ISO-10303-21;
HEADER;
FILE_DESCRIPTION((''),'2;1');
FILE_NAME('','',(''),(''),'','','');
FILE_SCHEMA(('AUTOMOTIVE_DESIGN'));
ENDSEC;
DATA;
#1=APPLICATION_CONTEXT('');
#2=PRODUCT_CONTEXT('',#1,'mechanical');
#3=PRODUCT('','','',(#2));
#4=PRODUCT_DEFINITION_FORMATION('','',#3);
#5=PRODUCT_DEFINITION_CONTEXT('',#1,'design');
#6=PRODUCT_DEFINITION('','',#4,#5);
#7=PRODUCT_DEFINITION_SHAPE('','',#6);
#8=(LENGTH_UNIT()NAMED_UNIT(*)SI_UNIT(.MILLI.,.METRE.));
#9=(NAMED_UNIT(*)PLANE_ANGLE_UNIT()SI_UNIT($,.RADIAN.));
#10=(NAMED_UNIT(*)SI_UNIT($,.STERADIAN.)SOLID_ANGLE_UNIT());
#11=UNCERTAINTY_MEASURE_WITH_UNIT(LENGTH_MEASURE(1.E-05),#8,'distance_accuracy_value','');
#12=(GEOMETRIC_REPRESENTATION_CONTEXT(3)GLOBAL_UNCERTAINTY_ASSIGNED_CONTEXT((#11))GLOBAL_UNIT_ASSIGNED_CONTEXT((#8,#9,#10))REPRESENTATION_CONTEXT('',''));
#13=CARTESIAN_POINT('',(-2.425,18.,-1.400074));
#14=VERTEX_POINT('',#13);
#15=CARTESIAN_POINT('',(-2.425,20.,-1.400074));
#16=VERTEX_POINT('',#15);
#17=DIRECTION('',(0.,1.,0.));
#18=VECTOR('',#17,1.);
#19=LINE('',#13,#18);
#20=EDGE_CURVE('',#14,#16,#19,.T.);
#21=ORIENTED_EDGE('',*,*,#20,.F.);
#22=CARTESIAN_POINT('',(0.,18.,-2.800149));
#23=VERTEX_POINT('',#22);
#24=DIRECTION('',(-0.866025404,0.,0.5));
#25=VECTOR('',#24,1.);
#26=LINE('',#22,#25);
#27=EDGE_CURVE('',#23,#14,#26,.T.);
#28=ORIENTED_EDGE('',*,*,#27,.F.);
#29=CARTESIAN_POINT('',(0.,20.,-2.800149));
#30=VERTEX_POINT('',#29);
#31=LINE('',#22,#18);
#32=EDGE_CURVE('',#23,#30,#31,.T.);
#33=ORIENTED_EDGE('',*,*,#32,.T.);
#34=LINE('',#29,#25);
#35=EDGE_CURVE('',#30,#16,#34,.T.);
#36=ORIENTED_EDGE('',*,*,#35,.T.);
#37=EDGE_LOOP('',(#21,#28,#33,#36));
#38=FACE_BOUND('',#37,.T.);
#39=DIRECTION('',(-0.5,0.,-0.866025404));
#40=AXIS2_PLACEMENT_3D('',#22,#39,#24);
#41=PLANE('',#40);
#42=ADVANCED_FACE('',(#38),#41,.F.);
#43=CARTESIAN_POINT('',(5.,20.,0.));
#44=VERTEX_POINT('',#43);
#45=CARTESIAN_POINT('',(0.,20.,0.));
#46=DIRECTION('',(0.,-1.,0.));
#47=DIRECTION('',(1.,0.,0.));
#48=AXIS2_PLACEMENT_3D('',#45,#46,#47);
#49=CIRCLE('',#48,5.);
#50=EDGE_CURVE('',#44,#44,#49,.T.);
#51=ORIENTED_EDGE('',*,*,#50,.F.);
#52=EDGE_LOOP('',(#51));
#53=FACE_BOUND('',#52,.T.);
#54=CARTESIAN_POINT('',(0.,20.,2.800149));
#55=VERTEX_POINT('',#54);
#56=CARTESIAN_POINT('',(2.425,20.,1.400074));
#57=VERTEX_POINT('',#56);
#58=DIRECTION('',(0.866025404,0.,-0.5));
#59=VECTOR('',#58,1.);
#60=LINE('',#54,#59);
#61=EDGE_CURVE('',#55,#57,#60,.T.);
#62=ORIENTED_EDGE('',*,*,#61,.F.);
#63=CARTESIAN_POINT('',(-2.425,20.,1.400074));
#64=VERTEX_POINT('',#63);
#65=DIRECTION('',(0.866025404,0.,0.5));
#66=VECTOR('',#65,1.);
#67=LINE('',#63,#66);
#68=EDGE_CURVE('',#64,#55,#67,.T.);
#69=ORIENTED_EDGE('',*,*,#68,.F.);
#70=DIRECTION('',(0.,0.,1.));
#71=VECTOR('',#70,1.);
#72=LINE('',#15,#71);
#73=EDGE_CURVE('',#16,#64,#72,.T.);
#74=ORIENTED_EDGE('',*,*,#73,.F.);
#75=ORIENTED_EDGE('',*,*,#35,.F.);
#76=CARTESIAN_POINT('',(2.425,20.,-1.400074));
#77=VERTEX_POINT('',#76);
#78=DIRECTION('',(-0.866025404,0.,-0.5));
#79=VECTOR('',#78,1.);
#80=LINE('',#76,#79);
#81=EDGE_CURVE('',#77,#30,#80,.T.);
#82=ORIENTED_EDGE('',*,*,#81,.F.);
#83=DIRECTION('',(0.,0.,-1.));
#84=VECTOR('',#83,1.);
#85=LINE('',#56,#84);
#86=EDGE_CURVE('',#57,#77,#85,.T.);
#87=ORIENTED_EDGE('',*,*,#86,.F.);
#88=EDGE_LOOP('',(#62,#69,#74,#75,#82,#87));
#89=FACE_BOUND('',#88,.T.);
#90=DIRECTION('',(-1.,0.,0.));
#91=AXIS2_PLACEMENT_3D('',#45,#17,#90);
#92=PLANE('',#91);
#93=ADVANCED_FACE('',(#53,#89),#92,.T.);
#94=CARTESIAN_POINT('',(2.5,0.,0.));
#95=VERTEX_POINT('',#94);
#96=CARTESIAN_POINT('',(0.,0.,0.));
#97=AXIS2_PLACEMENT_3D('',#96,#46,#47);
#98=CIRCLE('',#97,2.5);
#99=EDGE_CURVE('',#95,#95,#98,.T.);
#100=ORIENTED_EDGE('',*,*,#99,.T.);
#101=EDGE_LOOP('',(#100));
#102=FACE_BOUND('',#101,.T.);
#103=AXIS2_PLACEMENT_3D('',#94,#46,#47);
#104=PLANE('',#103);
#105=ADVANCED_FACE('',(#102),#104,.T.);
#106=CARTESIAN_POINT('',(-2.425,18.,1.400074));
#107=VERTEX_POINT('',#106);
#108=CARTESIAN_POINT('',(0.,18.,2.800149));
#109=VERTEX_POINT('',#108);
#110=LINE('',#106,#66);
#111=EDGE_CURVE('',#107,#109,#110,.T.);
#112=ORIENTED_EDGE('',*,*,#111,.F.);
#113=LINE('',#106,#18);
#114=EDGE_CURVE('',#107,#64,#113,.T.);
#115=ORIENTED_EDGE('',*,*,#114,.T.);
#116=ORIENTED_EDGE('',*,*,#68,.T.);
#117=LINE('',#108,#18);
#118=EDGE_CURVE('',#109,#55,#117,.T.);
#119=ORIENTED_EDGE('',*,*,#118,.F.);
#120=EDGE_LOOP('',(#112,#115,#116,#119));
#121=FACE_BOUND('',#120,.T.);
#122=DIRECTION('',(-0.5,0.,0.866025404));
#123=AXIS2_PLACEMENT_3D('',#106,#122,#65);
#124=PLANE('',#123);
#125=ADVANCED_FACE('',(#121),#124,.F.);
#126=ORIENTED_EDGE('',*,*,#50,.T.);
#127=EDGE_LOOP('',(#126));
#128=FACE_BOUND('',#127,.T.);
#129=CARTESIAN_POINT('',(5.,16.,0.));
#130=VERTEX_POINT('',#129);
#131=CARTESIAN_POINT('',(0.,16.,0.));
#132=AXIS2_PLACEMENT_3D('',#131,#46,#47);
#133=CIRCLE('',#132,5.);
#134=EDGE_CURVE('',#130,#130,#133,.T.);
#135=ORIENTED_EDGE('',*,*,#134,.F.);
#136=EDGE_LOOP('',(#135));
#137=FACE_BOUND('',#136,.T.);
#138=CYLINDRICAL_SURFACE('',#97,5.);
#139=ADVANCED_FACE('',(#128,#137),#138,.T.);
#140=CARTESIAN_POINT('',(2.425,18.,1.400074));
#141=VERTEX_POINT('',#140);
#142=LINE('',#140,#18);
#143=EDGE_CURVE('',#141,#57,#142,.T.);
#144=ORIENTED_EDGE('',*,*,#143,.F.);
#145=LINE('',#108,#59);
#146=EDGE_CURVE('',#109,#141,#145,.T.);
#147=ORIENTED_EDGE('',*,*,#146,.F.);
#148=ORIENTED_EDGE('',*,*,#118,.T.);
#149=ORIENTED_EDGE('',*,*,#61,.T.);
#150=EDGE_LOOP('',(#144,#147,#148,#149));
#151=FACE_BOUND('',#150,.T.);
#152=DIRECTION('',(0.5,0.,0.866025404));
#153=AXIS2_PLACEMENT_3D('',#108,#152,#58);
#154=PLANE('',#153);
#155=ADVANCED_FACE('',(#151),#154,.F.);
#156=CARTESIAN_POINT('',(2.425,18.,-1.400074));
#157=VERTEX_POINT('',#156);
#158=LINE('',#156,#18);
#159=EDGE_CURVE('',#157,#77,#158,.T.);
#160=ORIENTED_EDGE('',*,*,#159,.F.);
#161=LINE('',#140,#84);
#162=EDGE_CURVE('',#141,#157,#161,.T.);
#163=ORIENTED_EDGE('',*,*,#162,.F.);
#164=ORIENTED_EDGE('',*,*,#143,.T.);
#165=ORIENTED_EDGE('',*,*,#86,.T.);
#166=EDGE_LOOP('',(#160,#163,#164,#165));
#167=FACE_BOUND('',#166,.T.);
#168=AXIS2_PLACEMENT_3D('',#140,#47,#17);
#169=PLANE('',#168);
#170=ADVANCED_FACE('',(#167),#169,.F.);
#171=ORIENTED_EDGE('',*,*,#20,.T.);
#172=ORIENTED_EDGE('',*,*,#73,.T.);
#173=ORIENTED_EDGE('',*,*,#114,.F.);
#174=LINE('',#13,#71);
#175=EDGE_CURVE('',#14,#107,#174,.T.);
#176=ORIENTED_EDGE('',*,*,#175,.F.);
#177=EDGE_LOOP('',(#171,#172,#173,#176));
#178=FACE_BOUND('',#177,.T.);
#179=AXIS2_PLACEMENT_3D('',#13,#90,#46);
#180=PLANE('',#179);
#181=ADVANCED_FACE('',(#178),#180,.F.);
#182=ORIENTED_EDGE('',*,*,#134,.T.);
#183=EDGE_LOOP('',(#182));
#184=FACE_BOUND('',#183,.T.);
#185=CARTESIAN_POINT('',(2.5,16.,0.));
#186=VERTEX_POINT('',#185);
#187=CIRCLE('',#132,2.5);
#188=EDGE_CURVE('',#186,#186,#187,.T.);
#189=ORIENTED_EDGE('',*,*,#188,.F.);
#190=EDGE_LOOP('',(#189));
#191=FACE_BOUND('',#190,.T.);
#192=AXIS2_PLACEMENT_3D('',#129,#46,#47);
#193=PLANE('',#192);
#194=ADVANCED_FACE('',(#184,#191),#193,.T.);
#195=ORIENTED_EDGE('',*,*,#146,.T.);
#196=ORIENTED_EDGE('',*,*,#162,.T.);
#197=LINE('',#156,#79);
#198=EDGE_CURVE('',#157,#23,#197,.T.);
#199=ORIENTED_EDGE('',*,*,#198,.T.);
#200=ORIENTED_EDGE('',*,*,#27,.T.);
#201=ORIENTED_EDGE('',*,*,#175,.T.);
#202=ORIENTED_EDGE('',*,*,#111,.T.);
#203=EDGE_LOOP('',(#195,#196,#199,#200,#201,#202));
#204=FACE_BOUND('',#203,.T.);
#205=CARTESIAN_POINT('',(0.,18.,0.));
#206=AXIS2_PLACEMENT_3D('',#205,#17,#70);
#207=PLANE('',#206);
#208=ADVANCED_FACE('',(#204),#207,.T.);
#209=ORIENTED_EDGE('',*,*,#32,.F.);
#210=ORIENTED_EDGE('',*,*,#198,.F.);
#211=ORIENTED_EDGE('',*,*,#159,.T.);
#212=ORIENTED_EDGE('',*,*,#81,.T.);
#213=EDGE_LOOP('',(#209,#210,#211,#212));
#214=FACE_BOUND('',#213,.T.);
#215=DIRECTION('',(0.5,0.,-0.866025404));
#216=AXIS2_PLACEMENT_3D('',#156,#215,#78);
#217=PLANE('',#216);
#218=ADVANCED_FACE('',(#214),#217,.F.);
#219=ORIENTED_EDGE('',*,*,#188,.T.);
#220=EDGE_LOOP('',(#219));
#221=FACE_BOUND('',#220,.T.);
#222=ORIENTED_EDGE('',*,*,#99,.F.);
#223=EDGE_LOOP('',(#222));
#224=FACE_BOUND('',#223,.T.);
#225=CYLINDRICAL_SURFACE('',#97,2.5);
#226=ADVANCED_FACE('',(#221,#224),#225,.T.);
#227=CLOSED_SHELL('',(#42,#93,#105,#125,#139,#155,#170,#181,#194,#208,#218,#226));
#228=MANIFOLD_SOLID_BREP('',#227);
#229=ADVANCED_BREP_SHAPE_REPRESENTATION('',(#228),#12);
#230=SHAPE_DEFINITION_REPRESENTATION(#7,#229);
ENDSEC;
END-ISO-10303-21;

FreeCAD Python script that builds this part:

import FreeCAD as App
import Part
import Sketcher
Q = App.Units.Quantity


def add_polygon(sketch, points):
    """Adds a closed chain of lines whose ends are joined by coincident constraints."""
    first, n = sketch.GeometryCount, len(points)
    for a, b in zip(points, points[1:] + points[:1]):
        sketch.addGeometry(Part.LineSegment(App.Vector(*a, 0), App.Vector(*b, 0)), False)
    for i in range(n):
        sketch.addConstraint(Sketcher.Constraint("Coincident", first + i, 2, first + (i + 1) % n, 1))

doc = App.newDocument("Part")
body = doc.addObject("PartDesign::Body", "Body")

# Sketch on XY plane
sketch1 = doc.addObject("Sketcher::SketchObject", "Sketch")
body.addObject(sketch1)
sketch1.AttachmentSupport = (doc.XY_Plane, [""])
sketch1.MapMode = "FlatFace"
add_polygon(sketch1, [(0, 20), (0, 0), (2.5, 0), (2.5, 16), (5, 16), (5, 20)])  # lines 0-5
sketch1.addConstraint([
    Sketcher.Constraint("Vertical", 0),
    Sketcher.Constraint("Horizontal", 1),
    Sketcher.Constraint("Vertical", 2),
    Sketcher.Constraint("Horizontal", 3),
    Sketcher.Constraint("Vertical", 4),
    Sketcher.Constraint("Horizontal", 5),
    Sketcher.Constraint("Coincident", 0, 2, -1, 1),
    Sketcher.Constraint("Equal", 1, 3),
    Sketcher.Constraint("DistanceX", 5, 2, 5, 1, Q("5 mm")),
    Sketcher.Constraint("DistanceY", 0, 2, 0, 1, Q("20 mm")),
    Sketcher.Constraint("DistanceY", 2, 1, 2, 2, Q("16 mm")),
])
revolution = doc.addObject("PartDesign::Revolution", "Revolution")
body.addObject(revolution)
revolution.Profile = sketch1
revolution.ReferenceAxis = (sketch1, ["V_Axis"])
revolution.Angle = 360

# Sketch on XZ plane
sketch2 = doc.addObject("Sketcher::SketchObject", "Sketch001")
body.addObject(sketch2)
sketch2.AttachmentSupport = (doc.XZ_Plane, [""])
sketch2.MapMode = "FlatFace"
sketch2.AttachmentOffset = App.Placement(App.Vector(0, 0, -20), App.Rotation())
add_polygon(sketch2, [(0, 2.800149), (2.425, 1.400074), (2.425, -1.400074), (0, -2.800149), (-2.425, -1.400074), (-2.425, 1.400074)])  # lines 0-5
sketch2.addConstraint([
    Sketcher.Constraint("Vertical", 1),
    Sketcher.Constraint("Vertical", 4),
    Sketcher.Constraint("Symmetric", 0, 2, 3, 2, -1, 1),
    Sketcher.Constraint("Symmetric", 2, 2, 5, 2, -1, 1),
    Sketcher.Constraint("PointOnObject", 2, 2, -2),
    Sketcher.Constraint("Parallel", 2, 5),
    Sketcher.Constraint("Horizontal", 1, 2, 3, 2),
    Sketcher.Constraint("Angle", 0, Q("-30 deg")),
    Sketcher.Constraint("DistanceX", 3, 2, 1, 2, Q("4.85 mm")),
    Sketcher.Constraint("DistanceY", 1, 2, 1, 1, Q("2.800149 mm")),
])
pocket1 = doc.addObject("PartDesign::Pocket", "Pocket")
body.addObject(pocket1)
pocket1.Profile = sketch2
pocket1.Length = 2
pocket1.Reversed = True

doc.recompute()
